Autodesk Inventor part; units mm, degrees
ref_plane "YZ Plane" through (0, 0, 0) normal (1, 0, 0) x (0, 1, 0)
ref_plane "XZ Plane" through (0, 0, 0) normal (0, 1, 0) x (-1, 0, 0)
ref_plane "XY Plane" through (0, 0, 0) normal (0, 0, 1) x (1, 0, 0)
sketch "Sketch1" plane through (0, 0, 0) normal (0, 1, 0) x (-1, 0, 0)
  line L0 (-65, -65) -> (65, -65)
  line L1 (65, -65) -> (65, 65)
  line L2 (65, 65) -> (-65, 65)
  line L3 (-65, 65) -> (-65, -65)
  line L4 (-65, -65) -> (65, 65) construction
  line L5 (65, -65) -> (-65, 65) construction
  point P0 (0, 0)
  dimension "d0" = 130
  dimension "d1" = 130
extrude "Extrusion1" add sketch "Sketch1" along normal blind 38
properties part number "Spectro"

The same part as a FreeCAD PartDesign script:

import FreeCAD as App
import Part
import Sketcher

doc = App.newDocument("Part")
body = doc.addObject("PartDesign::Body", "Body")

# Sketch on XZ plane
sketch1 = doc.addObject("Sketcher::SketchObject", "Sketch")
body.addObject(sketch1)
sketch1.AttachmentSupport = (doc.XZ_Plane, [""])
sketch1.MapMode = "FlatFace"
sketch1.addGeometry(Part.LineSegment(App.Vector(65, 65, 0), App.Vector(65, -65, 0)), False)
sketch1.addGeometry(Part.LineSegment(App.Vector(65, -65, 0), App.Vector(-65, -65, 0)), False)
sketch1.addGeometry(Part.LineSegment(App.Vector(-65, -65, 0), App.Vector(-65, 65, 0)), False)
sketch1.addGeometry(Part.LineSegment(App.Vector(-65, 65, 0), App.Vector(65, 65, 0)), False)
sketch1.addConstraint(Sketcher.Constraint("Coincident", 0, 2, 1, 1))
sketch1.addConstraint(Sketcher.Constraint("Coincident", 1, 2, 2, 1))
sketch1.addConstraint(Sketcher.Constraint("Coincident", 2, 2, 3, 1))
sketch1.addConstraint(Sketcher.Constraint("Coincident", 3, 2, 0, 1))
sketch1.addConstraint(Sketcher.Constraint("Vertical", 0))
sketch1.addConstraint(Sketcher.Constraint("Horizontal", 1))
sketch1.addConstraint(Sketcher.Constraint("Vertical", 2))
sketch1.addConstraint(Sketcher.Constraint("Horizontal", 3))
sketch1.addConstraint(Sketcher.Constraint("Symmetric", 0, 2, 2, 2, -1, 1))
sketch1.addConstraint(Sketcher.Constraint("Equal", 3, 0))
sketch1.addConstraint(Sketcher.Constraint("DistanceX", 1, 2, 1, 1, 130.0))
pad1 = doc.addObject("PartDesign::Pad", "Pad")
body.addObject(pad1)
pad1.Profile = sketch1
pad1.Length = 38
pad1.Reversed = True

doc.recompute()
